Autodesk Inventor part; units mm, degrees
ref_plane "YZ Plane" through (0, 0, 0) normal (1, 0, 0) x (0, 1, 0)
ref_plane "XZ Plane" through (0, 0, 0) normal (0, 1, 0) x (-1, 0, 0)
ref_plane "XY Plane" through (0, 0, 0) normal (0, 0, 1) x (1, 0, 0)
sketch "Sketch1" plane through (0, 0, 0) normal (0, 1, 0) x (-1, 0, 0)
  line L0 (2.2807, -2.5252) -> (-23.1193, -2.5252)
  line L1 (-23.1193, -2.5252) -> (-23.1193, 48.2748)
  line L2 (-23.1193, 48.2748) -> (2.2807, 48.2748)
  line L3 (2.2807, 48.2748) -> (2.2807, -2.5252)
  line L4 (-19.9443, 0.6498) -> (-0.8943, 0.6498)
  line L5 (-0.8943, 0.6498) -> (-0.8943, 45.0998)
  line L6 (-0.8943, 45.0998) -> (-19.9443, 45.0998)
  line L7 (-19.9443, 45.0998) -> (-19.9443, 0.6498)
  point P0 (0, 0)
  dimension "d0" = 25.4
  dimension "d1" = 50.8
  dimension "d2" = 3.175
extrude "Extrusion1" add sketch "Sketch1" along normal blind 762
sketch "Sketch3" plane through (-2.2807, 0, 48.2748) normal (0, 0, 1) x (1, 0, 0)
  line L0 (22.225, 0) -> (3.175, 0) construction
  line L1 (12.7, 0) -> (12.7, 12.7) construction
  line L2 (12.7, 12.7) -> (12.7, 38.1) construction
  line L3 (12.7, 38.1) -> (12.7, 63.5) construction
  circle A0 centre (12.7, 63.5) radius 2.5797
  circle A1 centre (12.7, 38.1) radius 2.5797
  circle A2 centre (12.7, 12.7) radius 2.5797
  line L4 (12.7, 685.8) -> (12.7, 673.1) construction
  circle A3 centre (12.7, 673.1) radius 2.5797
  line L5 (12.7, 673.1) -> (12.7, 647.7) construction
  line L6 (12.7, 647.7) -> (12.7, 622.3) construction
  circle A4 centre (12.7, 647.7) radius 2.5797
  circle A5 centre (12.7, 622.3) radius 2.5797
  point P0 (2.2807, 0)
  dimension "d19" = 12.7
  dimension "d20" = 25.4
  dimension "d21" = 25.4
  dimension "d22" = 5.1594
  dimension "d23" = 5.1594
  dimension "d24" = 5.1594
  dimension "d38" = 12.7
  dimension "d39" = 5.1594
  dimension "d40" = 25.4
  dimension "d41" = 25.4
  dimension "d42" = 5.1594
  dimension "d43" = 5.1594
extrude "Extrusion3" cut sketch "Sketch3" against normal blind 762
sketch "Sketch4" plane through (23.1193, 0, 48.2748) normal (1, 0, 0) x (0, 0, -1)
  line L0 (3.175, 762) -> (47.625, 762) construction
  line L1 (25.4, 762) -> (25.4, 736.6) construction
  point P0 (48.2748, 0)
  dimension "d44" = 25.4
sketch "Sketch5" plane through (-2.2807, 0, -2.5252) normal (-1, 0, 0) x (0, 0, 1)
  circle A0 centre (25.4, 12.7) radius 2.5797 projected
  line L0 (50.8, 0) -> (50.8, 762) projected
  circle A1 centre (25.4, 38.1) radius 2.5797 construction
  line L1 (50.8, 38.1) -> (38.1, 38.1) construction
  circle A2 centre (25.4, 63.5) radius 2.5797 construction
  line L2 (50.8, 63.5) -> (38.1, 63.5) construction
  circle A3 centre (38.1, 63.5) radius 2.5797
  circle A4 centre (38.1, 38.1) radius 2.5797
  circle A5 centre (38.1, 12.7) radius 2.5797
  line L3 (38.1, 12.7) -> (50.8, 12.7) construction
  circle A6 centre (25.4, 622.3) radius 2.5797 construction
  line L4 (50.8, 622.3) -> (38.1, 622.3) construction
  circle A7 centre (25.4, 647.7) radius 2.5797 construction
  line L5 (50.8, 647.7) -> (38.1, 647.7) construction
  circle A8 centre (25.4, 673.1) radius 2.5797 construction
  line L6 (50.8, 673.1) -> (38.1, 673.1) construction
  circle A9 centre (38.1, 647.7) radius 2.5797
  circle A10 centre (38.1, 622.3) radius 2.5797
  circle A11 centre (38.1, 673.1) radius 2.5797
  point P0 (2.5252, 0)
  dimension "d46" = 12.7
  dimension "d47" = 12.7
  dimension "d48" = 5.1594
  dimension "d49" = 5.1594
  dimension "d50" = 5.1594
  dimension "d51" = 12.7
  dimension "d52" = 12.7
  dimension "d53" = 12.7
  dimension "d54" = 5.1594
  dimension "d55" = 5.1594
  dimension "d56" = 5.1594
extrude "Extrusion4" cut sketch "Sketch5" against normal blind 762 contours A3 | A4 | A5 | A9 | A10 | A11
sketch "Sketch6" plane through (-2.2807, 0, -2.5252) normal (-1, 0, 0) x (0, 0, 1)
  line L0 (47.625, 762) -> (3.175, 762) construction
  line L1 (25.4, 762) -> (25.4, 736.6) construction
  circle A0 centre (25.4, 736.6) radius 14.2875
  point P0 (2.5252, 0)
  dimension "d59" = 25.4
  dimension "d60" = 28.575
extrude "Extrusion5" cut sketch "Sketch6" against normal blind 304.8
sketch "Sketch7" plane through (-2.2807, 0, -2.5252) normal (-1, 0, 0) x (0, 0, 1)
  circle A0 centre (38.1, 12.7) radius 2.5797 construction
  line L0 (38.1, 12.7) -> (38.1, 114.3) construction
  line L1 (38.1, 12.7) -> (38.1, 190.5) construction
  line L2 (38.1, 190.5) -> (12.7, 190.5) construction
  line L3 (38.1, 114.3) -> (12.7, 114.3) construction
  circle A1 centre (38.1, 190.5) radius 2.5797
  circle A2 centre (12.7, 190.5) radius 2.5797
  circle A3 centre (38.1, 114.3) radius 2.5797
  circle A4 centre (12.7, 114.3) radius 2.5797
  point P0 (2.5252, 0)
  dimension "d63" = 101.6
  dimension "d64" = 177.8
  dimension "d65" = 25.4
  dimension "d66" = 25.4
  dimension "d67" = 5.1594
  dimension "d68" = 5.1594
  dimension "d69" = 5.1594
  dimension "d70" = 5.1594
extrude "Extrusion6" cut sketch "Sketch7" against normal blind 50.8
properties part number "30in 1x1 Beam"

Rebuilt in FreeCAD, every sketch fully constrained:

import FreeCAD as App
import Part
import Sketcher
Q = App.Units.Quantity

doc = App.newDocument("Part")
body = doc.addObject("PartDesign::Body", "Body")

sketch1 = body.newObject("Sketcher::SketchObject", "Sketch")
sketch1.AttachmentSupport = (doc.getObject("XZ_Plane"), [""])
sketch1.MapMode = "FlatFace"
sketch1.addGeometry(Part.LineSegment(App.Vector(23.1193, -2.5252, 0), App.Vector(-2.2807, -2.5252, 0)), False)
sketch1.addGeometry(Part.LineSegment(App.Vector(-2.2807, -2.5252, 0), App.Vector(-2.2807, 48.2748, 0)), False)
sketch1.addGeometry(Part.LineSegment(App.Vector(-2.2807, 48.2748, 0), App.Vector(23.1193, 48.2748, 0)), False)
sketch1.addGeometry(Part.LineSegment(App.Vector(23.1193, 48.2748, 0), App.Vector(23.1193, -2.5252, 0)), False)
sketch1.addGeometry(Part.LineSegment(App.Vector(0.8943, 0.6498, 0), App.Vector(19.9443, 0.6498, 0)), False)
sketch1.addGeometry(Part.LineSegment(App.Vector(19.9443, 0.6498, 0), App.Vector(19.9443, 45.0998, 0)), False)
sketch1.addGeometry(Part.LineSegment(App.Vector(19.9443, 45.0998, 0), App.Vector(0.8943, 45.0998, 0)), False)
sketch1.addGeometry(Part.LineSegment(App.Vector(0.8943, 45.0998, 0), App.Vector(0.8943, 0.6498, 0)), False)
sketch1.addConstraint(Sketcher.Constraint("Coincident", 0, 2, 1, 1))
sketch1.addConstraint(Sketcher.Constraint("Coincident", 1, 2, 2, 1))
sketch1.addConstraint(Sketcher.Constraint("Coincident", 2, 2, 3, 1))
sketch1.addConstraint(Sketcher.Constraint("Coincident", 3, 2, 0, 1))
sketch1.addConstraint(Sketcher.Constraint("Coincident", 4, 2, 5, 1))
sketch1.addConstraint(Sketcher.Constraint("Coincident", 5, 2, 6, 1))
sketch1.addConstraint(Sketcher.Constraint("Coincident", 6, 2, 7, 1))
sketch1.addConstraint(Sketcher.Constraint("Coincident", 7, 2, 4, 1))
sketch1.addConstraint(Sketcher.Constraint("Horizontal", 0))
sketch1.addConstraint(Sketcher.Constraint("Vertical", 1))
sketch1.addConstraint(Sketcher.Constraint("Horizontal", 2))
sketch1.addConstraint(Sketcher.Constraint("Vertical", 3))
sketch1.addConstraint(Sketcher.Constraint("Horizontal", 4))
sketch1.addConstraint(Sketcher.Constraint("Vertical", 5))
sketch1.addConstraint(Sketcher.Constraint("Horizontal", 6))
sketch1.addConstraint(Sketcher.Constraint("Vertical", 7))
sketch1.addConstraint(Sketcher.Constraint("DistanceX", 0, 2, 0, 1, Q("1 in")))
sketch1.addConstraint(Sketcher.Constraint("DistanceY", 1, 1, 1, 2, Q("2 in")))
sketch1.addConstraint(Sketcher.Constraint("DistanceX", 4, 2, 3, 2, Q("0.125 in")))
sketch1.addConstraint(Sketcher.Constraint("DistanceY", 3, 2, 4, 2, Q("0.125 in")))
sketch1.addConstraint(Sketcher.Constraint("DistanceY", 5, 2, 2, 2, Q("0.125 in")))
sketch1.addConstraint(Sketcher.Constraint("DistanceX", 1, 2, 6, 2, Q("0.125 in")))
sketch1.addConstraint(Sketcher.Constraint("DistanceX", 0, 2, -1, 1, Q("0.0898 in")))
sketch1.addConstraint(Sketcher.Constraint("DistanceY", 0, 2, -1, 1, Q("2.5252 mm")))
pad1 = body.newObject("PartDesign::Pad", "Pad")
pad1.Profile = sketch1
pad1.Length = Q("30 in")
pad1.Reversed = True

sketch2 = body.newObject("Sketcher::SketchObject", "Sketch001")
sketch2.AttachmentSupport = (doc.getObject("XY_Plane"), [""])
sketch2.MapMode = "FlatFace"
sketch2.AttachmentOffset = App.Placement(App.Vector(0, 0, 48.2748), App.Rotation())
sketch2.addGeometry(Part.Circle(App.Vector(10.4193, 63.5, 0), App.Vector(0, 0, 1), 2.5797), False)
sketch2.addGeometry(Part.Circle(App.Vector(10.4193, 38.1, 0), App.Vector(0, 0, 1), 2.5797), False)
sketch2.addGeometry(Part.Circle(App.Vector(10.4193, 12.7, 0), App.Vector(0, 0, 1), 2.5797), False)
sketch2.addGeometry(Part.Circle(App.Vector(10.4193, 673.1, 0), App.Vector(0, 0, 1), 2.5797), False)
sketch2.addGeometry(Part.Circle(App.Vector(10.4193, 647.7, 0), App.Vector(0, 0, 1), 2.5797), False)
sketch2.addGeometry(Part.Circle(App.Vector(10.4193, 622.3, 0), App.Vector(0, 0, 1), 2.5797), False)
sketch2.addConstraint(Sketcher.Constraint("Equal", 0, 1))
sketch2.addConstraint(Sketcher.Constraint("Equal", 1, 2))
sketch2.addConstraint(Sketcher.Constraint("Equal", 2, 3))
sketch2.addConstraint(Sketcher.Constraint("Equal", 3, 4))
sketch2.addConstraint(Sketcher.Constraint("Equal", 4, 5))
sketch2.addConstraint(Sketcher.Constraint("Vertical", 0, 3, 1, 3))
sketch2.addConstraint(Sketcher.Constraint("Vertical", 1, 3, 2, 3))
sketch2.addConstraint(Sketcher.Constraint("Vertical", 2, 3, 3, 3))
sketch2.addConstraint(Sketcher.Constraint("Vertical", 3, 3, 4, 3))
sketch2.addConstraint(Sketcher.Constraint("Vertical", 4, 3, 5, 3))
sketch2.addConstraint(Sketcher.Constraint("Diameter", 0, Q("0.203126 in")))
sketch2.addConstraint(Sketcher.Constraint("DistanceY", 1, 3, 0, 3, Q("1 in")))
sketch2.addConstraint(Sketcher.Constraint("DistanceY", 2, 3, 1, 3, Q("1 in")))
sketch2.addConstraint(Sketcher.Constraint("DistanceY", 4, 3, 3, 3, Q("1 in")))
sketch2.addConstraint(Sketcher.Constraint("DistanceY", 5, 3, 4, 3, Q("1 in")))
sketch2.addConstraint(Sketcher.Constraint("DistanceY", -1, 1, 2, 3, Q("0.5 in")))
sketch2.addConstraint(Sketcher.Constraint("DistanceY", 0, 3, 3, 3, Q("24 in")))
sketch2.addConstraint(Sketcher.Constraint("DistanceX", -1, 1, 0, 3, Q("0.4102 in")))
pocket1 = body.newObject("PartDesign::Pocket", "Pocket")
pocket1.Profile = sketch2
pocket1.Length = Q("30 in")

sketch3 = body.newObject("Sketcher::SketchObject", "Sketch002")
sketch3.AttachmentSupport = (doc.getObject("YZ_Plane"), [""])
sketch3.MapMode = "FlatFace"
sketch3.AttachmentOffset = App.Placement(App.Vector(0, 0, -0.0897913 * 25.4), App.Rotation())
sketch3.addGeometry(Part.Circle(App.Vector(63.5, 35.5748, 0), App.Vector(0, 0, 1), 2.5797), False)
sketch3.addGeometry(Part.Circle(App.Vector(38.1, 35.5748, 0), App.Vector(0, 0, 1), 2.5797), False)
sketch3.addGeometry(Part.Circle(App.Vector(12.7, 35.5748, 0), App.Vector(0, 0, 1), 2.5797), False)
sketch3.addGeometry(Part.Circle(App.Vector(647.7, 35.5748, 0), App.Vector(0, 0, 1), 2.5797), False)
sketch3.addGeometry(Part.Circle(App.Vector(622.3, 35.5748, 0), App.Vector(0, 0, 1), 2.5797), False)
sketch3.addGeometry(Part.Circle(App.Vector(673.1, 35.5748, 0), App.Vector(0, 0, 1), 2.5797), False)
sketch3.addConstraint(Sketcher.Constraint("Equal", 0, 1))
sketch3.addConstraint(Sketcher.Constraint("Equal", 1, 2))
sketch3.addConstraint(Sketcher.Constraint("Equal", 2, 3))
sketch3.addConstraint(Sketcher.Constraint("Equal", 3, 4))
sketch3.addConstraint(Sketcher.Constraint("Equal", 4, 5))
sketch3.addConstraint(Sketcher.Constraint("Horizontal", 0, 3, 1, 3))
sketch3.addConstraint(Sketcher.Constraint("Horizontal", 1, 3, 2, 3))
sketch3.addConstraint(Sketcher.Constraint("Horizontal", 2, 3, 3, 3))
sketch3.addConstraint(Sketcher.Constraint("Horizontal", 3, 3, 4, 3))
sketch3.addConstraint(Sketcher.Constraint("Horizontal", 4, 3, 5, 3))
sketch3.addConstraint(Sketcher.Constraint("Diameter", 0, Q("0.203126 in")))
sketch3.addConstraint(Sketcher.Constraint("DistanceX", -1, 1, 2, 3, Q("0.5 in")))
sketch3.addConstraint(Sketcher.Constraint("DistanceX", 1, 3, 0, 3, Q("1 in")))
sketch3.addConstraint(Sketcher.Constraint("DistanceX", 2, 3, 1, 3, Q("1 in")))
sketch3.addConstraint(Sketcher.Constraint("DistanceX", 0, 3, 3, 3, Q("23 in")))
sketch3.addConstraint(Sketcher.Constraint("DistanceX", 4, 3, 3, 3, Q("1 in")))
sketch3.addConstraint(Sketcher.Constraint("DistanceX", 3, 3, 5, 3, Q("1 in")))
sketch3.addConstraint(Sketcher.Constraint("DistanceY", -1, 1, 0, 3, Q("35.5748 mm")))
pocket2 = body.newObject("PartDesign::Pocket", "Pocket001")
pocket2.Profile = sketch3
pocket2.Length = Q("30 in")
pocket2.Reversed = True

sketch4 = body.newObject("Sketcher::SketchObject", "Sketch003")
sketch4.AttachmentSupport = (doc.getObject("YZ_Plane"), [""])
sketch4.MapMode = "FlatFace"
sketch4.AttachmentOffset = App.Placement(App.Vector(0, 0, -0.0897913 * 25.4), App.Rotation())
sketch4.addGeometry(Part.Circle(App.Vector(736.6, 22.8748, 0), App.Vector(0, 0, 1), 14.2875), False)
sketch4.addConstraint(Sketcher.Constraint("Diameter", 0, Q("1.125 in")))
sketch4.addConstraint(Sketcher.Constraint("DistanceX", -1, 1, 0, 3, Q("29 in")))
sketch4.addConstraint(Sketcher.Constraint("DistanceY", -1, 1, 0, 3, Q("22.8748 mm")))
pocket3 = body.newObject("PartDesign::Pocket", "Pocket002")
pocket3.Profile = sketch4
pocket3.Length = Q("12 in")
pocket3.Reversed = True

sketch5 = body.newObject("Sketcher::SketchObject", "Sketch004")
sketch5.AttachmentSupport = (doc.getObject("YZ_Plane"), [""])
sketch5.MapMode = "FlatFace"
sketch5.AttachmentOffset = App.Placement(App.Vector(0, 0, -0.0897913 * 25.4), App.Rotation())
sketch5.addGeometry(Part.Circle(App.Vector(190.5, 35.5748, 0), App.Vector(0, 0, 1), 2.5797), False)
sketch5.addGeometry(Part.Circle(App.Vector(190.5, 10.1748, 0), App.Vector(0, 0, 1), 2.5797), False)
sketch5.addGeometry(Part.Circle(App.Vector(114.3, 35.5748, 0), App.Vector(0, 0, 1), 2.5797), False)
sketch5.addGeometry(Part.Circle(App.Vector(114.3, 10.1748, 0), App.Vector(0, 0, 1), 2.5797), False)
sketch5.addConstraint(Sketcher.Constraint("Equal", 0, 1))
sketch5.addConstraint(Sketcher.Constraint("Equal", 1, 2))
sketch5.addConstraint(Sketcher.Constraint("Equal", 2, 3))
sketch5.addConstraint(Sketcher.Constraint("Horizontal", 0, 3, 2, 3))
sketch5.addConstraint(Sketcher.Constraint("Horizontal", 1, 3, 3, 3))
sketch5.addConstraint(Sketcher.Constraint("Vertical", 0, 3, 1, 3))
sketch5.addConstraint(Sketcher.Constraint("Vertical", 2, 3, 3, 3))
sketch5.addConstraint(Sketcher.Constraint("Diameter", 0, Q("0.203126 in")))
sketch5.addConstraint(Sketcher.Constraint("DistanceY", 1, 3, 0, 3, Q("1 in")))
sketch5.addConstraint(Sketcher.Constraint("DistanceX", 2, 3, 0, 3, Q("3 in")))
sketch5.addConstraint(Sketcher.Constraint("DistanceX", -1, 1, 0, 3, Q("7.5 in")))
sketch5.addConstraint(Sketcher.Constraint("DistanceY", -1, 1, 0, 3, Q("35.5748 mm")))
pocket4 = body.newObject("PartDesign::Pocket", "Pocket003")
pocket4.Profile = sketch5
pocket4.Length = Q("2 in")
pocket4.Reversed = True

doc.recompute()
